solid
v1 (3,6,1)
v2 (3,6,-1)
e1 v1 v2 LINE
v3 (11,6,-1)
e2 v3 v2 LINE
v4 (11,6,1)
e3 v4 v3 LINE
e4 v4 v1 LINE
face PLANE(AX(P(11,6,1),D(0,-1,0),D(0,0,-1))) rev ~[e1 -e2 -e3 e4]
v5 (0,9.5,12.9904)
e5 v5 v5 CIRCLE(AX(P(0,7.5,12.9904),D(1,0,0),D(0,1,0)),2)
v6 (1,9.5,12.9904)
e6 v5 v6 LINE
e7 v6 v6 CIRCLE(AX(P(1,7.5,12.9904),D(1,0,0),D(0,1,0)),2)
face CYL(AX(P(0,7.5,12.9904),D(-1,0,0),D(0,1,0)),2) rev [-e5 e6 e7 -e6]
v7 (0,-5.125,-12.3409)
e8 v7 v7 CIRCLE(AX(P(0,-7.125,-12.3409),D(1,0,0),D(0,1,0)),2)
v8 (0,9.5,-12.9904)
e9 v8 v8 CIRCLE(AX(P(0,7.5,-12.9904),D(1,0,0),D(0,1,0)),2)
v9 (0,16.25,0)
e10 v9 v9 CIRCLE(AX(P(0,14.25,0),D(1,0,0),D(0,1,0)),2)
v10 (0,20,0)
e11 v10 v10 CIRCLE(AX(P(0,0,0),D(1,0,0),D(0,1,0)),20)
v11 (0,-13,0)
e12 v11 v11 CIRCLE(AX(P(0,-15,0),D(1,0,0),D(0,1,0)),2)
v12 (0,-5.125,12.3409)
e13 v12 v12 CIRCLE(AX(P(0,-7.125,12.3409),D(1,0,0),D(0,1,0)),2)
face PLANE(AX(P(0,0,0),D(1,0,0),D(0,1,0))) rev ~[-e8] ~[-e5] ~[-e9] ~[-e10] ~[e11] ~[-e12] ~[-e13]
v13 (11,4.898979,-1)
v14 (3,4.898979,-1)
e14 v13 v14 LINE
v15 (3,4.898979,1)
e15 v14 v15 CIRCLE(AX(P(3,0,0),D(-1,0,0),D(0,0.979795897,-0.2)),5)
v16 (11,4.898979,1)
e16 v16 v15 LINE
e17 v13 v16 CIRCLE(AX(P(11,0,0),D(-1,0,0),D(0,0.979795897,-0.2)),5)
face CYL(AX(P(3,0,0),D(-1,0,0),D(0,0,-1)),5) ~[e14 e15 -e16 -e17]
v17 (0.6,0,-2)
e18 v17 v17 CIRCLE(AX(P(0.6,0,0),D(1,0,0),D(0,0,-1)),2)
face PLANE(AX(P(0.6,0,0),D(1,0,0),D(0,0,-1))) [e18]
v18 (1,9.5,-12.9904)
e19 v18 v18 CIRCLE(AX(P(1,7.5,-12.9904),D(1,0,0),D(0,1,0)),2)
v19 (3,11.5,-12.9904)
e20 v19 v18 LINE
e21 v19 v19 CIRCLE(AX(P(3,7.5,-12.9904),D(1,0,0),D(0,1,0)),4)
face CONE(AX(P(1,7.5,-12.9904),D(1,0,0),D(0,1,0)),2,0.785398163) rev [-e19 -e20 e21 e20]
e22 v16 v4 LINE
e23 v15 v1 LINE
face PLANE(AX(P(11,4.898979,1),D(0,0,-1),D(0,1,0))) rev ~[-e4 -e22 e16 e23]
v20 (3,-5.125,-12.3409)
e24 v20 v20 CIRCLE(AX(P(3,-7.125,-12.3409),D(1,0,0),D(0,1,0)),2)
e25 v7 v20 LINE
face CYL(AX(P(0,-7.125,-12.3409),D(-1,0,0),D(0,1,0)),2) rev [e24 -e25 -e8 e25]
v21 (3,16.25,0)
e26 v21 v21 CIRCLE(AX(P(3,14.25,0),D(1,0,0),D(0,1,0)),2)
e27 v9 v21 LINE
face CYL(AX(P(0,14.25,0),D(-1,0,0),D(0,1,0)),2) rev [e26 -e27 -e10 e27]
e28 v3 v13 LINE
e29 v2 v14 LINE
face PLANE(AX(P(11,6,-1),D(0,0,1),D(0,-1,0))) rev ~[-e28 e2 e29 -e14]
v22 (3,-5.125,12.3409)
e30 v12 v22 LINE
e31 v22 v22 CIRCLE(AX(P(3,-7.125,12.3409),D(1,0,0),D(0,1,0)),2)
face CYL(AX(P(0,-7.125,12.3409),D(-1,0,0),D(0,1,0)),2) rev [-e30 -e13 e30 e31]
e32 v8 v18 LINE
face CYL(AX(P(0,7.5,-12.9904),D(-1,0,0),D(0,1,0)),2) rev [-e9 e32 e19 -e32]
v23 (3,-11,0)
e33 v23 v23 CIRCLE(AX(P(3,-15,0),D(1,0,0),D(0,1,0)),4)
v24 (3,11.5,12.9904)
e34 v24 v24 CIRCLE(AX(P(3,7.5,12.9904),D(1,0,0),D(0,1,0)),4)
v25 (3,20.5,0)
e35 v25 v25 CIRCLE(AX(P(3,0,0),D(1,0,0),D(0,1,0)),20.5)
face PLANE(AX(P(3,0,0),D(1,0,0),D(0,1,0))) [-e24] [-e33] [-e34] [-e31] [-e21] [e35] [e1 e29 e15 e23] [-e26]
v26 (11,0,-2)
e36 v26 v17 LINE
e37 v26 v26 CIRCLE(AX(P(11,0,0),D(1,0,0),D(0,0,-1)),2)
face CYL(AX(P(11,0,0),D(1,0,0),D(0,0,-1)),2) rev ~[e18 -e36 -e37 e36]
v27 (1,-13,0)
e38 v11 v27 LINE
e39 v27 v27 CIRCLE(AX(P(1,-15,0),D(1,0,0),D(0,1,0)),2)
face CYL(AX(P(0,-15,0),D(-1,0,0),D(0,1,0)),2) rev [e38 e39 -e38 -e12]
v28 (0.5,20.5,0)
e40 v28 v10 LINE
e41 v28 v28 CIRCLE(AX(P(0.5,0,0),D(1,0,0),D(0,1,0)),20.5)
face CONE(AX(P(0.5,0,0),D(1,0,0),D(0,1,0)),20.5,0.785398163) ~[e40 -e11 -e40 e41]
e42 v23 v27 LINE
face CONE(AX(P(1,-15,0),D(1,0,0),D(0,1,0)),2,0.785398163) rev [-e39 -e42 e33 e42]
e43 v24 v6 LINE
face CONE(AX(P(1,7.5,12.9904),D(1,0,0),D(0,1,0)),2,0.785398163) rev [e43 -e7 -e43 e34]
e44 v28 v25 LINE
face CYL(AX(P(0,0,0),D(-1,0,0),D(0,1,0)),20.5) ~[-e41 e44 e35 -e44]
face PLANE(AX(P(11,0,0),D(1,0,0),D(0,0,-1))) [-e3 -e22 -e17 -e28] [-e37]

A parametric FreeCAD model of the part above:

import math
import FreeCAD as App
import Part
import Sketcher

V = App.Vector


def edges_at(feature, points):
    """Names of the edges that pass closest to the given points."""
    edges = feature.Shape.Edges
    near = lambda p: min(range(len(edges)), key=lambda i: edges[i].distToShape(Part.Vertex(*p))[0])
    return sorted({f"Edge{near(p) + 1}" for p in points})

doc = App.newDocument("Part")
params = doc.addObject("Spreadsheet::Sheet", "Params")
for row, (alias, value) in enumerate([
    ("sketch1_diameter", "41 mm"),
    ("sketch1_diameter2", "4 mm"),
    ("pad1_length", "3 mm"),
    ("chamfer_size", "0.5 mm"),
    ("chamfer2_size", "2 mm"),
    ("sketch2_diameter", "10 mm"),
    ("pad2_length", "8 mm"),
    ("sketch3_height", "2 mm"),
    ("sketch3_radius", "5 mm"),
    ("pad3_length", "8 mm"),
    ("sketch4_diameter", "4 mm"),
    ("pocket1_length", "10.4 mm"),
], start=1):
    params.set(f"A{row}", alias)
    params.set(f"B{row}", "=" + value)
    params.setAlias(f"B{row}", alias)

body = doc.addObject("PartDesign::Body", "Body")

sketch1 = doc.addObject("Sketcher::SketchObject", "Sketch")
body.addObject(sketch1)
sketch1.AttachmentSupport = (doc.YZ_Plane, [""])
sketch1.MapMode = "FlatFace"
sketch1.addGeometry([
    Part.Circle(V(0, 0, 0), V(0, 0, 1), 20.5),
    Part.Circle(V(-7.1, -12.3, 0), V(0, 0, 1), 2),
    Part.Circle(V(7.5, -13, 0), V(0, 0, 1), 2),
    Part.Circle(V(-15, 0, 0), V(0, 0, 1), 2),
    Part.Circle(V(-7.1, 12.3, 0), V(0, 0, 1), 2),
    Part.Circle(V(14.2, 0, 0), V(0, 0, 1), 2),
    Part.Circle(V(7.5, 13, 0), V(0, 0, 1), 2),
], False)
sketch1.addConstraint([
    Sketcher.Constraint("Coincident", 0, 3, -1, 1),
    Sketcher.Constraint("Equal", 1, 2),
    Sketcher.Constraint("Equal", 2, 3),
    Sketcher.Constraint("Equal", 3, 4),
    Sketcher.Constraint("Equal", 4, 5),
    Sketcher.Constraint("Equal", 5, 6),
    Sketcher.Constraint("Symmetric", 1, 3, 4, 3, -1),
    Sketcher.Constraint("Symmetric", 2, 3, 6, 3, -1),
    Sketcher.Constraint("PointOnObject", 3, 3, -1),
    Sketcher.Constraint("PointOnObject", 5, 3, -1),
    Sketcher.Constraint("Diameter", 0, 41.0),
    Sketcher.Constraint("Diameter", 1, 4.0),
    Sketcher.Constraint("DistanceX", 3, 3, -1, 1, 15.0),
    Sketcher.Constraint("DistanceX", -1, 1, 2, 3, 7.5),
    Sketcher.Constraint("DistanceX", -1, 1, 5, 3, 14.25),
    Sketcher.Constraint("DistanceX", 1, 3, -1, 1, 7.125),
    Sketcher.Constraint("DistanceY", 1, 3, -1, 1, 12.341),
    Sketcher.Constraint("DistanceY", 2, 3, -1, 1, 12.9904),
])
sketch1.setExpression("Constraints[10]", "Params.sketch1_diameter")
sketch1.setExpression("Constraints[11]", "Params.sketch1_diameter2")
pad1 = doc.addObject("PartDesign::Pad", "Pad")
body.addObject(pad1)
pad1.Profile = sketch1
pad1.setExpression("Length", "Params.pad1_length")
doc.recompute()

chamfer = doc.addObject("PartDesign::Chamfer", "Chamfer")
body.addObject(chamfer)
chamfer.Base = (pad1, edges_at(pad1, [(0, -20.5, 0)]))
chamfer.setExpression("Size", "Params.chamfer_size")
doc.recompute()

chamfer2 = doc.addObject("PartDesign::Chamfer", "Chamfer001")
body.addObject(chamfer2)
chamfer2.Base = (chamfer, edges_at(chamfer, [(3, 5.5, -12.99), (3, -17, 0), (3, 5.5, 12.99)]))
chamfer2.setExpression("Size", "Params.chamfer2_size")

sketch2 = doc.addObject("Sketcher::SketchObject", "Sketch001")
body.addObject(sketch2)
sketch2.AttachmentSupport = (doc.YZ_Plane, [""])
sketch2.MapMode = "FlatFace"
sketch2.AttachmentOffset = App.Placement(V(0, 0, 3), App.Rotation())
sketch2.addGeometry(Part.Circle(V(0, 0, 0), V(0, 0, 1), 5), False)
sketch2.addConstraint([
    Sketcher.Constraint("Coincident", 0, 3, -1, 1),
    Sketcher.Constraint("Diameter", 0, 10.0),
])
sketch2.setExpression("Constraints[1]", "Params.sketch2_diameter")
pad2 = doc.addObject("PartDesign::Pad", "Pad001")
body.addObject(pad2)
pad2.Profile = sketch2
pad2.setExpression("Length", "Params.pad2_length")

sketch3 = doc.addObject("Sketcher::SketchObject", "Sketch002")
body.addObject(sketch3)
sketch3.AttachmentSupport = (doc.YZ_Plane, [""])
sketch3.MapMode = "FlatFace"
sketch3.AttachmentOffset = App.Placement(V(0, 0, 11), App.Rotation())
sketch3.addGeometry([
    Part.LineSegment(V(6, 1, 0), V(4.9, 1, 0)),
    Part.ArcOfCircle(Part.Circle(V(0, 0, 0), V(0, 0, 1), 5), math.radians(-12), math.radians(12)),
    Part.LineSegment(V(4.9, -1, 0), V(6, -1, 0)),
    Part.LineSegment(V(6, -1, 0), V(6, 1, 0)),
], False)
sketch3.addConstraint([
    Sketcher.Constraint("Coincident", 0, 2, 1, 2),
    Sketcher.Constraint("Coincident", 1, 1, 2, 1),
    Sketcher.Constraint("Coincident", 2, 2, 3, 1),
    Sketcher.Constraint("Coincident", 3, 2, 0, 1),
    Sketcher.Constraint("Horizontal", 0),
    Sketcher.Constraint("Horizontal", 2),
    Sketcher.Constraint("Vertical", 3),
    Sketcher.Constraint("Coincident", 1, 3, -1, 1),
    Sketcher.Constraint("Vertical", 0, 2, 1, 1),
    Sketcher.Constraint("DistanceY", 3, 1, 3, 2, 2.0),
    Sketcher.Constraint("Radius", 1, 5.0),
    Sketcher.Constraint("DistanceX", -1, 1, 2, 2, 6.0),
])
sketch3.setExpression("Constraints[9]", "Params.sketch3_height")
sketch3.setExpression("Constraints[10]", "Params.sketch3_radius")
pad3 = doc.addObject("PartDesign::Pad", "Pad002")
body.addObject(pad3)
pad3.Profile = sketch3
pad3.setExpression("Length", "Params.pad3_length")
pad3.Reversed = True

sketch4 = doc.addObject("Sketcher::SketchObject", "Sketch003")
body.addObject(sketch4)
sketch4.AttachmentSupport = (doc.YZ_Plane, [""])
sketch4.MapMode = "FlatFace"
sketch4.AttachmentOffset = App.Placement(V(0, 0, 11), App.Rotation())
sketch4.addGeometry(Part.Circle(V(0, 0, 0), V(0, 0, 1), 2), False)
sketch4.addConstraint([
    Sketcher.Constraint("Coincident", 0, 3, -1, 1),
    Sketcher.Constraint("Diameter", 0, 4.0),
])
sketch4.setExpression("Constraints[1]", "Params.sketch4_diameter")
pocket1 = doc.addObject("PartDesign::Pocket", "Pocket")
body.addObject(pocket1)
pocket1.Profile = sketch4
pocket1.setExpression("Length", "Params.pocket1_length")

doc.recompute()
